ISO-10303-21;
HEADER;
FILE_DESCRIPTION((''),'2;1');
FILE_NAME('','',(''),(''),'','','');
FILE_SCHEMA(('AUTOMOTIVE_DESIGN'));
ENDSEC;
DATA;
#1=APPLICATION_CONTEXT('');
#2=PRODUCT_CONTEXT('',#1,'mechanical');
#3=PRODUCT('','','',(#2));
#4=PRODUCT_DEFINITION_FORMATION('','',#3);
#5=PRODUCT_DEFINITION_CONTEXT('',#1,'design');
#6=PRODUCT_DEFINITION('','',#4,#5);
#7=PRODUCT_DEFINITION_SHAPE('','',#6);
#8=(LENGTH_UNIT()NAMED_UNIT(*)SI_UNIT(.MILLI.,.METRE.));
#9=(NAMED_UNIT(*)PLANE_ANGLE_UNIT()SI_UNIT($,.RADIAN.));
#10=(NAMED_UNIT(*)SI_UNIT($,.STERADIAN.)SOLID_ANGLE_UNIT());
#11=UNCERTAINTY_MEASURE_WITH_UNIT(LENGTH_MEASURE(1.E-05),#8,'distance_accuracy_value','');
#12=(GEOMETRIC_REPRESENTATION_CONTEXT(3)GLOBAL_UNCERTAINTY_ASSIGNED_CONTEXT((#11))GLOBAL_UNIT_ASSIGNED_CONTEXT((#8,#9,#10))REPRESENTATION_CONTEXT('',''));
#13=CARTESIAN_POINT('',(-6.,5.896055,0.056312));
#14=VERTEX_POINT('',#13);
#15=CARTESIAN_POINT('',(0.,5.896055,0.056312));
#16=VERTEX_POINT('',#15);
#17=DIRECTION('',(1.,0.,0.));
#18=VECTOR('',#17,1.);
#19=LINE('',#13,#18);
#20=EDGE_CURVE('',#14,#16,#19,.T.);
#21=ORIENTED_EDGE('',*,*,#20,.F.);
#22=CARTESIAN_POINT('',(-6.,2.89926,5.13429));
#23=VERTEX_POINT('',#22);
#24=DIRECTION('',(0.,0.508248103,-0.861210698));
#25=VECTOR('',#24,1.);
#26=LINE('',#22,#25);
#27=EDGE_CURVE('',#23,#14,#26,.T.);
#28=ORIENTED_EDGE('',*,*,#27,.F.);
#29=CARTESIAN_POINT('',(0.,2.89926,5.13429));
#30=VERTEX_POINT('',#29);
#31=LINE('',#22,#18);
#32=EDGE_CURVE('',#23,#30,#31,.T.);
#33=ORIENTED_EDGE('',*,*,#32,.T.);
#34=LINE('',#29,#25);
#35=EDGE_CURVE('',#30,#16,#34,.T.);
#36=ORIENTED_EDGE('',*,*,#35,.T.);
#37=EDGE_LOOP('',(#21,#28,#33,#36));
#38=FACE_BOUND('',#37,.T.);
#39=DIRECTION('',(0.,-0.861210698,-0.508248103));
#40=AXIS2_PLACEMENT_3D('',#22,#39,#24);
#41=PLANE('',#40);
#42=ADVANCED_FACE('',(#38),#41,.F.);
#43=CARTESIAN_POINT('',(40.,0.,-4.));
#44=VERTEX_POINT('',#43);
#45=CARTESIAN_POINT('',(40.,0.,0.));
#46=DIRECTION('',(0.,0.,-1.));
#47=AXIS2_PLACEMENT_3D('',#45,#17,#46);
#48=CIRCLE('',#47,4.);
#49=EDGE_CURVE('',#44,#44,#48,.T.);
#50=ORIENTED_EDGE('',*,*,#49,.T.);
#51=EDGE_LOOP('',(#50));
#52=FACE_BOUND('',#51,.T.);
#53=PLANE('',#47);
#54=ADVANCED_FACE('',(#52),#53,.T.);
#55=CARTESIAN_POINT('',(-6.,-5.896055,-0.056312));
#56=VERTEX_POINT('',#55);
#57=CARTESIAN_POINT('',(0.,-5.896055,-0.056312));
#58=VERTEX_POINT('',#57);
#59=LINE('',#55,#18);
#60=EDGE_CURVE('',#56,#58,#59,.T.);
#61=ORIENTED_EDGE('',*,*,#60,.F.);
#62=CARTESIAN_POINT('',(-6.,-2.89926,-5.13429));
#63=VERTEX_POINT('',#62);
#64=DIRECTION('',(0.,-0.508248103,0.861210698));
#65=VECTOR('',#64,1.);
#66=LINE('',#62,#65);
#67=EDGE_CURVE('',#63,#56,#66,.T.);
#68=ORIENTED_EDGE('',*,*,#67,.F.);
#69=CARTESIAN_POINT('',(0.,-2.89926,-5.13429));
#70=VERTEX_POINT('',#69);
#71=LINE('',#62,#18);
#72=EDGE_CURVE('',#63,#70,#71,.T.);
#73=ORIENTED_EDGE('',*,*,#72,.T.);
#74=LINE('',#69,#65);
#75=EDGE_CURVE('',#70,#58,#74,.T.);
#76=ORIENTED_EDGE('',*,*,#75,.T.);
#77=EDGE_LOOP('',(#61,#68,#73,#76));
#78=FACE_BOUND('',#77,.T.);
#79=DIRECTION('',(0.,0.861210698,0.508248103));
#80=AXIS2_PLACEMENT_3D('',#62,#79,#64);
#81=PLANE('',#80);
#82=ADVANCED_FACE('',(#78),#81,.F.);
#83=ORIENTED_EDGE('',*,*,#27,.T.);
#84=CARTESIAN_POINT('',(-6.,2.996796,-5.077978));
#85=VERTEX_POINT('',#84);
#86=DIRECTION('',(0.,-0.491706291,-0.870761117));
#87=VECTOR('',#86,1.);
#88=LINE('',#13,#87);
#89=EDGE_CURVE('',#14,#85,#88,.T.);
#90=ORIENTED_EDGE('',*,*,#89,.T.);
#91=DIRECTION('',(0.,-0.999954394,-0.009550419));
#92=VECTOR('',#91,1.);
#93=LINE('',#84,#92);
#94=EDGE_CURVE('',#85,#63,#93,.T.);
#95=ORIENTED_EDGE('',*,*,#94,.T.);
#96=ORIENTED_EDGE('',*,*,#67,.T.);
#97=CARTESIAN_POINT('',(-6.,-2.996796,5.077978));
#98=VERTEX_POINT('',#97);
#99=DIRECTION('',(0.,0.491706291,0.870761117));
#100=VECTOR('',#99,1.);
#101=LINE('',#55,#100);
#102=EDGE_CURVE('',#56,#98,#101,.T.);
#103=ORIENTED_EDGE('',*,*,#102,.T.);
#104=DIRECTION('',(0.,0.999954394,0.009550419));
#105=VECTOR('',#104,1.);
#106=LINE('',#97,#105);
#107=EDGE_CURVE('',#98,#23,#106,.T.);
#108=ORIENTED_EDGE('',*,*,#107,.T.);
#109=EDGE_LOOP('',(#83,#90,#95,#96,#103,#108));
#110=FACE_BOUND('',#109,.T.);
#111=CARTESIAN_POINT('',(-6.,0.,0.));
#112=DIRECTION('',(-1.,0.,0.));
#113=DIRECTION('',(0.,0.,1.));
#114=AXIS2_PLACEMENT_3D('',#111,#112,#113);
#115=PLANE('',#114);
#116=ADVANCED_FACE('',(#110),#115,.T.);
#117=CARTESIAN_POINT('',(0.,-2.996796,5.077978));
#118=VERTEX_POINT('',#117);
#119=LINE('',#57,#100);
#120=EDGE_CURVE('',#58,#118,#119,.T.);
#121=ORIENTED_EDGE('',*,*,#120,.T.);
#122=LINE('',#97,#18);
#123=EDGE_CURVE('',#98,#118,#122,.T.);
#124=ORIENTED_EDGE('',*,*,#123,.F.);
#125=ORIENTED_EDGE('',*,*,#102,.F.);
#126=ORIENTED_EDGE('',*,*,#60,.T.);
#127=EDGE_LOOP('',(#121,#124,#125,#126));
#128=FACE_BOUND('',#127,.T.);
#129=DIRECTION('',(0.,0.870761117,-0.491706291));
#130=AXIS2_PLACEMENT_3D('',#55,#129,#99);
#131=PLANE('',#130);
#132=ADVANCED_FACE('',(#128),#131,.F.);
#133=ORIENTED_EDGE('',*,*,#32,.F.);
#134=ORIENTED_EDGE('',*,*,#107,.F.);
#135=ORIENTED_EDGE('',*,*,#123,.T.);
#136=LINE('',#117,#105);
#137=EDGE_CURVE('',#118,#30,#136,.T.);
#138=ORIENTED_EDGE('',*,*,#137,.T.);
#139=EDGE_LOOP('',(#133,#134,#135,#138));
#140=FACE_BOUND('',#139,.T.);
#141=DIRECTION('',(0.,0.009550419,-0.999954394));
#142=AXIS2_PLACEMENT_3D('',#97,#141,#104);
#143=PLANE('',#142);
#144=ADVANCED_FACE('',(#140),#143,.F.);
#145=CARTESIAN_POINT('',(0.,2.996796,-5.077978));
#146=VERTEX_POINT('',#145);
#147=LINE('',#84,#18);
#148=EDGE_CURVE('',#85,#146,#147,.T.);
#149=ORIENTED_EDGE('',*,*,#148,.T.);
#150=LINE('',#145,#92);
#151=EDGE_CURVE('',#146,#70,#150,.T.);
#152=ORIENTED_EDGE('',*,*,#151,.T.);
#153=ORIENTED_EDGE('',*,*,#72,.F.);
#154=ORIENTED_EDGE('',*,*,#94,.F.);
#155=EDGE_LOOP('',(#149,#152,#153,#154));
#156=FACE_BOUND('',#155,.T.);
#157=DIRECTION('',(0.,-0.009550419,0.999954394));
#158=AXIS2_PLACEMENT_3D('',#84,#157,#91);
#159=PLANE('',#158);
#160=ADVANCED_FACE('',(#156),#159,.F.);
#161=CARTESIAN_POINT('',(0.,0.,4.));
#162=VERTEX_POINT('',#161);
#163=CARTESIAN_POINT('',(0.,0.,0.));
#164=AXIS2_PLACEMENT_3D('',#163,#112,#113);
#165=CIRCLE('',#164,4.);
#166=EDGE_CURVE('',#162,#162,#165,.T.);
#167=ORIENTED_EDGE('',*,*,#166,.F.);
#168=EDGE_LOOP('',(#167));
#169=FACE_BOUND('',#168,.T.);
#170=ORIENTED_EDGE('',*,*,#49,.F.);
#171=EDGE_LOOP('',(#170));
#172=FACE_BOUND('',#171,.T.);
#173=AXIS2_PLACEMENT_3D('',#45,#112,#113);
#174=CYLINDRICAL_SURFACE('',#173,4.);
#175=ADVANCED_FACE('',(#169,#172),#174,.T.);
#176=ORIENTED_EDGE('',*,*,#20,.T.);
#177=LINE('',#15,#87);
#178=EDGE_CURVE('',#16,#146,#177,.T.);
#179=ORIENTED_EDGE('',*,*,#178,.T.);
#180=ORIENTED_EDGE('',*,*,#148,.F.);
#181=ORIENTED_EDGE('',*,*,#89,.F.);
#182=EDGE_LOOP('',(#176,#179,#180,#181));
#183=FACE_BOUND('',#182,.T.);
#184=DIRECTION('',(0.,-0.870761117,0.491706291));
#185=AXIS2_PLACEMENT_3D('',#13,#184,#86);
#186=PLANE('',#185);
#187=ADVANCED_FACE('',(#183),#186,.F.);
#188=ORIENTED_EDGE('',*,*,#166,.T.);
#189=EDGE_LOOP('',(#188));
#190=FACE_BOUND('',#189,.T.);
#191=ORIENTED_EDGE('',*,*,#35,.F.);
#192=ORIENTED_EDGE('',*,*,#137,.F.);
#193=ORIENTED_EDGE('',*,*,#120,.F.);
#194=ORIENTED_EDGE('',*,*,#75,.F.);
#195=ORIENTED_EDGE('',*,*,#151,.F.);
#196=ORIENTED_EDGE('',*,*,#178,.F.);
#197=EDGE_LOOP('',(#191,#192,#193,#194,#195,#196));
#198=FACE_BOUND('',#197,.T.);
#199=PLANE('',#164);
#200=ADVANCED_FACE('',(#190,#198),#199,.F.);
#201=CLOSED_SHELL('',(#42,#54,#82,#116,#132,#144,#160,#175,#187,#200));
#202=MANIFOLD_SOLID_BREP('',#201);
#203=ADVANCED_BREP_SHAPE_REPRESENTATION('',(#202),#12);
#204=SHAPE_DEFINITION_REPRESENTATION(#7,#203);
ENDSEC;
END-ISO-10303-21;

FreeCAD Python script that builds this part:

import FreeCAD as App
import Part
import Sketcher

V = App.Vector
Q = App.Units.Quantity


def add_polygon(sketch, points):
    """Adds a closed chain of lines whose ends are joined by coincident constraints."""
    first, n = sketch.GeometryCount, len(points)
    for a, b in zip(points, points[1:] + points[:1]):
        sketch.addGeometry(Part.LineSegment(App.Vector(*a, 0), App.Vector(*b, 0)), False)
    for i in range(n):
        sketch.addConstraint(Sketcher.Constraint("Coincident", first + i, 2, first + (i + 1) % n, 1))

doc = App.newDocument("Part")
body = doc.addObject("PartDesign::Body", "Body")

sketch1 = body.newObject("Sketcher::SketchObject", "Sketch")
sketch1.AttachmentSupport = (doc.getObject("YZ_Plane"), [""])
sketch1.MapMode = "FlatFace"
sketch1.addGeometry(Part.Circle(V(0, 0, 0), V(0, 0, 1), 4), False)
sketch1.addConstraint([
    Sketcher.Constraint("Coincident", 0, 3, -1, 1),
    Sketcher.Constraint("Diameter", 0, Q("8 mm")),
])
pad1 = body.newObject("PartDesign::Pad", "Pad")
pad1.Profile = sketch1
pad1.Length = 40

sketch2 = body.newObject("Sketcher::SketchObject", "Sketch001")
sketch2.AttachmentSupport = (doc.getObject("YZ_Plane"), [""])
sketch2.MapMode = "FlatFace"
add_polygon(sketch2, [(-2.996796, 5.077978), (2.89926, 5.13429), (5.896055, 0.056312), (2.996796, -5.077978), (-2.89926, -5.13429), (-5.896055, -0.056312)])
sketch2.addConstraint([
    Sketcher.Constraint("Symmetric", 0, 2, 3, 2, -1, 1),
    Sketcher.Constraint("Symmetric", 1, 2, 4, 2, -1, 1),
    Sketcher.Constraint("Symmetric", 2, 2, 5, 2, -1, 1),
    Sketcher.Constraint("Equal", 0, 1),
    Sketcher.Constraint("Equal", 1, 2),
    Sketcher.Constraint("DistanceX", -1, 1, 0, 2, Q("2.89926 mm")),
    Sketcher.Constraint("DistanceY", -1, 1, 0, 2, Q("5.13429 mm")),
    Sketcher.Constraint("DistanceX", 2, 2, 1, 2, Q("2.89926 mm")),
    Sketcher.Constraint("DistanceY", 2, 2, 1, 2, Q("5.13429 mm")),
])
pad2 = body.newObject("PartDesign::Pad", "Pad001")
pad2.Profile = sketch2
pad2.Length = 6
pad2.Reversed = True

doc.recompute()
